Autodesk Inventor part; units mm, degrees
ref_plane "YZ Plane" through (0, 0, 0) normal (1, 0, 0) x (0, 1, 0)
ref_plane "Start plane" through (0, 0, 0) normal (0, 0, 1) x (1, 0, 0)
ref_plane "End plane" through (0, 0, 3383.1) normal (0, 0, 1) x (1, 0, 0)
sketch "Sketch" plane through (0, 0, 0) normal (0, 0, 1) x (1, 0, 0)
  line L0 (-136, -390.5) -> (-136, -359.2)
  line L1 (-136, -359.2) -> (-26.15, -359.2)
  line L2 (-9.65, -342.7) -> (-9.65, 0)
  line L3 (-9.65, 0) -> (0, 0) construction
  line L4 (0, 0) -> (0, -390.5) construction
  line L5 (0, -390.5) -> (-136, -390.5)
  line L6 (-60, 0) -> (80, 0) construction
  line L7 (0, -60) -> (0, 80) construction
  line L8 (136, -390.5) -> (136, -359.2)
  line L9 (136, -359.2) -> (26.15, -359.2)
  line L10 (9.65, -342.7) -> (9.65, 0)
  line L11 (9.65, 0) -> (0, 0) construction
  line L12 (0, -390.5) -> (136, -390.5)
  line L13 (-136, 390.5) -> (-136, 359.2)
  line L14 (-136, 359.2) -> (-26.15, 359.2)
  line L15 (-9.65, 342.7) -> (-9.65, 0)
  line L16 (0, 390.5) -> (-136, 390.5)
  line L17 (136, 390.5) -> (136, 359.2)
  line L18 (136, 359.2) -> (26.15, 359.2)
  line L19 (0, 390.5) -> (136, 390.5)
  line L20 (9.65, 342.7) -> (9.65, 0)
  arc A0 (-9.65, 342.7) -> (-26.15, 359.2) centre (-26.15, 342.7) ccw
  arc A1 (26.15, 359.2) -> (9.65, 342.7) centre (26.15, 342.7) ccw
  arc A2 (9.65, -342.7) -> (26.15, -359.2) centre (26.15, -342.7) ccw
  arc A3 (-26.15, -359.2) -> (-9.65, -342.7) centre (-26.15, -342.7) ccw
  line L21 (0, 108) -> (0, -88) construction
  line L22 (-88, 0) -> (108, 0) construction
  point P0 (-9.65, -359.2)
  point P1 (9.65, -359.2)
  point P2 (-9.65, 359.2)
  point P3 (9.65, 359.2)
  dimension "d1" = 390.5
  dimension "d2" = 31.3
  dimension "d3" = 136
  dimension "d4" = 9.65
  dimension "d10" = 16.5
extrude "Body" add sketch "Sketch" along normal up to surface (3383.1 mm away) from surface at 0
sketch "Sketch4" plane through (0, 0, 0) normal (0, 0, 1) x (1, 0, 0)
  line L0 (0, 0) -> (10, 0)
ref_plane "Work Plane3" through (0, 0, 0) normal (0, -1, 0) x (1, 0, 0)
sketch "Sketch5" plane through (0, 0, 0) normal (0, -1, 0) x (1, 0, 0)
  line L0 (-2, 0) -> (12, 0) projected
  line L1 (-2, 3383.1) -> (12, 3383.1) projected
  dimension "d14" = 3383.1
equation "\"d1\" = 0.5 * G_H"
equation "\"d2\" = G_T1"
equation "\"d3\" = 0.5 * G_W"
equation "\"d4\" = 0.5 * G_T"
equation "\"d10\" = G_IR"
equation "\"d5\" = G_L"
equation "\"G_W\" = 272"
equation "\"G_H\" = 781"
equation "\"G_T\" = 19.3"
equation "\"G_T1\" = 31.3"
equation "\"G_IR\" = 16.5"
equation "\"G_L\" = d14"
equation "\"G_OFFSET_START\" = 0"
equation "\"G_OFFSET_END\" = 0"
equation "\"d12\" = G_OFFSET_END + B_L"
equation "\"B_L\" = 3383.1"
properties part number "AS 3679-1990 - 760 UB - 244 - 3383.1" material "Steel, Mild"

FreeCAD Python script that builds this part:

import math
import FreeCAD as App
import Part
import Sketcher
Q = App.Units.Quantity

doc = App.newDocument("Part")
body = doc.addObject("PartDesign::Body", "Body")

# Sketch on XY plane
sketch1 = body.newObject("Sketcher::SketchObject", "Sketch")
sketch1.AttachmentSupport = (doc.getObject("XY_Plane"), [""])
sketch1.MapMode = "FlatFace"
sketch1.addGeometry([
    Part.LineSegment(App.Vector(-136, -359.2, 0), App.Vector(-136, -390.5, 0)),  # 0
    Part.LineSegment(App.Vector(-136, -390.5, 0), App.Vector(136, -390.5, 0)),  # 1
    Part.LineSegment(App.Vector(136, -390.5, 0), App.Vector(136, -359.2, 0)),  # 2
    Part.LineSegment(App.Vector(136, -359.2, 0), App.Vector(26.15, -359.2, 0)),  # 3
    Part.ArcOfCircle(Part.Circle(App.Vector(26.15, -342.7, 0), App.Vector(0, 0, 1), 16.5), math.radians(180), math.radians(270)),  # 4
    Part.LineSegment(App.Vector(9.65, -342.7, 0), App.Vector(9.65, 342.7, 0)),  # 5
    Part.ArcOfCircle(Part.Circle(App.Vector(26.15, 342.7, 0), App.Vector(0, 0, 1), 16.5), math.radians(90), math.radians(180)),  # 6
    Part.LineSegment(App.Vector(26.15, 359.2, 0), App.Vector(136, 359.2, 0)),  # 7
    Part.LineSegment(App.Vector(136, 359.2, 0), App.Vector(136, 390.5, 0)),  # 8
    Part.LineSegment(App.Vector(136, 390.5, 0), App.Vector(-136, 390.5, 0)),  # 9
    Part.LineSegment(App.Vector(-136, 390.5, 0), App.Vector(-136, 359.2, 0)),  # 10
    Part.LineSegment(App.Vector(-136, 359.2, 0), App.Vector(-26.15, 359.2, 0)),  # 11
    Part.ArcOfCircle(Part.Circle(App.Vector(-26.15, 342.7, 0), App.Vector(0, 0, 1), 16.5), math.radians(0), math.radians(90)),  # 12
    Part.LineSegment(App.Vector(-9.65, 342.7, 0), App.Vector(-9.65, -342.7, 0)),  # 13
    Part.ArcOfCircle(Part.Circle(App.Vector(-26.15, -342.7, 0), App.Vector(0, 0, 1), 16.5), math.radians(-90), math.radians(0)),  # 14
    Part.LineSegment(App.Vector(-26.15, -359.2, 0), App.Vector(-136, -359.2, 0)),  # 15
], False)
sketch1.addConstraint([
    Sketcher.Constraint("Coincident", 0, 2, 1, 1),
    Sketcher.Constraint("Coincident", 1, 2, 2, 1),
    Sketcher.Constraint("Coincident", 2, 2, 3, 1),
    Sketcher.Constraint("Tangent", 3, 2, 4, 2),
    Sketcher.Constraint("Tangent", 4, 1, 5, 1),
    Sketcher.Constraint("Tangent", 5, 2, 6, 2),
    Sketcher.Constraint("Tangent", 6, 1, 7, 1),
    Sketcher.Constraint("Coincident", 7, 2, 8, 1),
    Sketcher.Constraint("Coincident", 8, 2, 9, 1),
    Sketcher.Constraint("Coincident", 9, 2, 10, 1),
    Sketcher.Constraint("Coincident", 10, 2, 11, 1),
    Sketcher.Constraint("Tangent", 11, 2, 12, 2),
    Sketcher.Constraint("Tangent", 12, 1, 13, 1),
    Sketcher.Constraint("Tangent", 13, 2, 14, 2),
    Sketcher.Constraint("Tangent", 14, 1, 15, 1),
    Sketcher.Constraint("Coincident", 15, 2, 0, 1),
    Sketcher.Constraint("Vertical", 0),
    Sketcher.Constraint("Horizontal", 1),
    Sketcher.Constraint("Vertical", 2),
    Sketcher.Constraint("Horizontal", 3),
    Sketcher.Constraint("Vertical", 5),
    Sketcher.Constraint("Horizontal", 7),
    Sketcher.Constraint("Vertical", 8),
    Sketcher.Constraint("Horizontal", 9),
    Sketcher.Constraint("Vertical", 10),
    Sketcher.Constraint("Horizontal", 11),
    Sketcher.Constraint("Vertical", 13),
    Sketcher.Constraint("Horizontal", 15),
    Sketcher.Constraint("Equal", 4, 6),
    Sketcher.Constraint("Equal", 6, 12),
    Sketcher.Constraint("Equal", 12, 14),
    Sketcher.Constraint("Symmetric", 4, 3, 12, 3, -1, 1),
    Sketcher.Constraint("Symmetric", 0, 2, 8, 2, -1, 1),
    Sketcher.Constraint("Symmetric", 7, 2, 10, 2, -2),
    Sketcher.Constraint("Symmetric", 2, 2, 15, 2, -2),
    Sketcher.Constraint("Radius", 4, Q("16.5 mm")),
    Sketcher.Constraint("DistanceY", 0, 2, 0, 1, Q("31.3 mm")),
    Sketcher.Constraint("DistanceX", 0, 2, -1, 1, Q("136 mm")),
    Sketcher.Constraint("DistanceY", 0, 2, -1, 1, Q("390.5 mm")),
    Sketcher.Constraint("DistanceX", -1, 1, 4, 1, Q("9.65 mm")),
])
pad1 = body.newObject("PartDesign::Pad", "Pad")
pad1.Profile = sketch1
pad1.Length = 3383.1

doc.recompute()
